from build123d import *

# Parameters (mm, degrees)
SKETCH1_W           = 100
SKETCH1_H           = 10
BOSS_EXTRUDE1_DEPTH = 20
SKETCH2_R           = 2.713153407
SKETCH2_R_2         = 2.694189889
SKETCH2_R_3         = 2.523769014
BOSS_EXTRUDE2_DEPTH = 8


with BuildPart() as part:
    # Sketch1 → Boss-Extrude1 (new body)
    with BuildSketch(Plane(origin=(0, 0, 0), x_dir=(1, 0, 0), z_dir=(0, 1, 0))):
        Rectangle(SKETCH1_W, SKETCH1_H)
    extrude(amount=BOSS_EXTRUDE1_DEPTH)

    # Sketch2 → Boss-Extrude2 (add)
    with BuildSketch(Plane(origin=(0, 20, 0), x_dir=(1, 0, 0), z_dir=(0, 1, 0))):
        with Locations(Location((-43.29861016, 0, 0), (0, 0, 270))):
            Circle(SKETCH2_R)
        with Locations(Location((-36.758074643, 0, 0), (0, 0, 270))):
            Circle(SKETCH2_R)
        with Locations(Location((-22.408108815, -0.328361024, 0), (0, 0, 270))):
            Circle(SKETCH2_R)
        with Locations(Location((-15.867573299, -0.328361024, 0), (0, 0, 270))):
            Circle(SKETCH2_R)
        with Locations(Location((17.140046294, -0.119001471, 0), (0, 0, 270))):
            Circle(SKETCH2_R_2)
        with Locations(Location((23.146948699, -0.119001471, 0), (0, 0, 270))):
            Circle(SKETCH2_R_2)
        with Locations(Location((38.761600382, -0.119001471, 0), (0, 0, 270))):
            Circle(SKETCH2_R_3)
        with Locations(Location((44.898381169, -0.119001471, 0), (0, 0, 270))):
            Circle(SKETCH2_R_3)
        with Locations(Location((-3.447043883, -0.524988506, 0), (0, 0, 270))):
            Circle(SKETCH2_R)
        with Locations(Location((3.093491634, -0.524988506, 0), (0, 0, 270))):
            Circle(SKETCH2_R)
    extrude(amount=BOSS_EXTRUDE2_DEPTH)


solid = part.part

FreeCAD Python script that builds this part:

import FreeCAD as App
import Part
import Sketcher


def add_polygon(sketch, points):
    """Adds a closed chain of lines whose ends are joined by coincident constraints."""
    first, n = sketch.GeometryCount, len(points)
    for a, b in zip(points, points[1:] + points[:1]):
        sketch.addGeometry(Part.LineSegment(App.Vector(*a, 0), App.Vector(*b, 0)), False)
    for i in range(n):
        sketch.addConstraint(Sketcher.Constraint("Coincident", first + i, 2, first + (i + 1) % n, 1))

doc = App.newDocument("Part")
body = doc.addObject("PartDesign::Body", "Body")

# Sketch on XZ plane
sketch1 = body.newObject("Sketcher::SketchObject", "Sketch")
sketch1.AttachmentSupport = (doc.getObject("XZ_Plane"), [""])
sketch1.MapMode = "FlatFace"
add_polygon(sketch1, [(-50, -5), (-50, 5), (50, 5), (50, -5)])  # lines 0-3
sketch1.addConstraint([
    Sketcher.Constraint("Vertical", 0),
    Sketcher.Constraint("Horizontal", 1),
    Sketcher.Constraint("Vertical", 2),
    Sketcher.Constraint("Horizontal", 3),
    Sketcher.Constraint("Symmetric", 0, 2, 2, 2, -1, 1),
    Sketcher.Constraint("DistanceX", 1, 1, 1, 2, 100.0),
    Sketcher.Constraint("DistanceY", 0, 1, 0, 2, 10.0),
])
pad1 = body.newObject("PartDesign::Pad", "Pad")
pad1.Profile = sketch1
pad1.Length = 20
pad1.Reversed = True

# Sketch on XZ plane
sketch2 = body.newObject("Sketcher::SketchObject", "Sketch001")
sketch2.AttachmentSupport = (doc.getObject("XZ_Plane"), [""])
sketch2.MapMode = "FlatFace"
sketch2.AttachmentOffset = App.Placement(App.Vector(0, 0, -20), App.Rotation())
sketch2.addGeometry([
    Part.Circle(App.Vector(-43.3, 0, 0), App.Vector(0, 0, 1), 2.7),  # 0
    Part.Circle(App.Vector(-36.8, 0, 0), App.Vector(0, 0, 1), 2.7),  # 1
    Part.Circle(App.Vector(-22.4, 0.3, 0), App.Vector(0, 0, 1), 2.7),  # 2
    Part.Circle(App.Vector(-15.9, 0.3, 0), App.Vector(0, 0, 1), 2.7),  # 3
    Part.Circle(App.Vector(17.1, 0.1, 0), App.Vector(0, 0, 1), 2.7),  # 4
    Part.Circle(App.Vector(23.1, 0.1, 0), App.Vector(0, 0, 1), 2.7),  # 5
    Part.Circle(App.Vector(38.8, 0.1, 0), App.Vector(0, 0, 1), 2.5),  # 6
    Part.Circle(App.Vector(44.9, 0.1, 0), App.Vector(0, 0, 1), 2.5),  # 7
    Part.Circle(App.Vector(-3.4, 0.5, 0), App.Vector(0, 0, 1), 2.7),  # 8
    Part.Circle(App.Vector(3.1, 0.5, 0), App.Vector(0, 0, 1), 2.7),  # 9
], False)
sketch2.addConstraint([
    Sketcher.Constraint("Equal", 0, 1),
    Sketcher.Constraint("Equal", 1, 2),
    Sketcher.Constraint("Equal", 2, 3),
    Sketcher.Constraint("Equal", 4, 5),
    Sketcher.Constraint("Equal", 6, 7),
    Sketcher.Constraint("Equal", 3, 8),
    Sketcher.Constraint("Equal", 8, 9),
    Sketcher.Constraint("PointOnObject", 0, 3, -1),
    Sketcher.Constraint("PointOnObject", 1, 3, -1),
    Sketcher.Constraint("Horizontal", 2, 3, 3, 3),
    Sketcher.Constraint("Horizontal", 4, 3, 5, 3),
    Sketcher.Constraint("Horizontal", 5, 3, 6, 3),
    Sketcher.Constraint("Horizontal", 6, 3, 7, 3),
    Sketcher.Constraint("Horizontal", 8, 3, 9, 3),
    Sketcher.Constraint("Diameter", 4, 5.38838),
    Sketcher.Constraint("Diameter", 6, 5.047538),
    Sketcher.Constraint("Diameter", 0, 5.426307),
    Sketcher.Constraint("DistanceY", -1, 1, 4, 3, 0.119001),
    Sketcher.Constraint("DistanceX", -1, 1, 6, 3, 38.7616),
    Sketcher.Constraint("DistanceX", 0, 3, 2, 3, 20.890501),
    Sketcher.Constraint("DistanceX", 1, 3, 3, 3, 20.890501),
    Sketcher.Constraint("DistanceX", 2, 3, 9, 3, 25.5016),
    Sketcher.Constraint("DistanceX", 0, 3, -1, 1, 43.29861),
    Sketcher.Constraint("DistanceY", -1, 1, 2, 3, 0.328361),
    Sketcher.Constraint("DistanceX", -1, 1, 5, 3, 23.146949),
    Sketcher.Constraint("DistanceX", -1, 1, 7, 3, 44.898381),
    Sketcher.Constraint("DistanceY", -1, 1, 8, 3, 0.524989),
    Sketcher.Constraint("DistanceX", 3, 3, 4, 3, 33.00762),
    Sketcher.Constraint("DistanceX", 3, 3, 5, 3, 39.014522),
    Sketcher.Constraint("DistanceX", 3, 3, 8, 3, 12.420529),
])
pad2 = body.newObject("PartDesign::Pad", "Pad001")
pad2.Profile = sketch2
pad2.Length = 8
pad2.Reversed = True

doc.recompute()
